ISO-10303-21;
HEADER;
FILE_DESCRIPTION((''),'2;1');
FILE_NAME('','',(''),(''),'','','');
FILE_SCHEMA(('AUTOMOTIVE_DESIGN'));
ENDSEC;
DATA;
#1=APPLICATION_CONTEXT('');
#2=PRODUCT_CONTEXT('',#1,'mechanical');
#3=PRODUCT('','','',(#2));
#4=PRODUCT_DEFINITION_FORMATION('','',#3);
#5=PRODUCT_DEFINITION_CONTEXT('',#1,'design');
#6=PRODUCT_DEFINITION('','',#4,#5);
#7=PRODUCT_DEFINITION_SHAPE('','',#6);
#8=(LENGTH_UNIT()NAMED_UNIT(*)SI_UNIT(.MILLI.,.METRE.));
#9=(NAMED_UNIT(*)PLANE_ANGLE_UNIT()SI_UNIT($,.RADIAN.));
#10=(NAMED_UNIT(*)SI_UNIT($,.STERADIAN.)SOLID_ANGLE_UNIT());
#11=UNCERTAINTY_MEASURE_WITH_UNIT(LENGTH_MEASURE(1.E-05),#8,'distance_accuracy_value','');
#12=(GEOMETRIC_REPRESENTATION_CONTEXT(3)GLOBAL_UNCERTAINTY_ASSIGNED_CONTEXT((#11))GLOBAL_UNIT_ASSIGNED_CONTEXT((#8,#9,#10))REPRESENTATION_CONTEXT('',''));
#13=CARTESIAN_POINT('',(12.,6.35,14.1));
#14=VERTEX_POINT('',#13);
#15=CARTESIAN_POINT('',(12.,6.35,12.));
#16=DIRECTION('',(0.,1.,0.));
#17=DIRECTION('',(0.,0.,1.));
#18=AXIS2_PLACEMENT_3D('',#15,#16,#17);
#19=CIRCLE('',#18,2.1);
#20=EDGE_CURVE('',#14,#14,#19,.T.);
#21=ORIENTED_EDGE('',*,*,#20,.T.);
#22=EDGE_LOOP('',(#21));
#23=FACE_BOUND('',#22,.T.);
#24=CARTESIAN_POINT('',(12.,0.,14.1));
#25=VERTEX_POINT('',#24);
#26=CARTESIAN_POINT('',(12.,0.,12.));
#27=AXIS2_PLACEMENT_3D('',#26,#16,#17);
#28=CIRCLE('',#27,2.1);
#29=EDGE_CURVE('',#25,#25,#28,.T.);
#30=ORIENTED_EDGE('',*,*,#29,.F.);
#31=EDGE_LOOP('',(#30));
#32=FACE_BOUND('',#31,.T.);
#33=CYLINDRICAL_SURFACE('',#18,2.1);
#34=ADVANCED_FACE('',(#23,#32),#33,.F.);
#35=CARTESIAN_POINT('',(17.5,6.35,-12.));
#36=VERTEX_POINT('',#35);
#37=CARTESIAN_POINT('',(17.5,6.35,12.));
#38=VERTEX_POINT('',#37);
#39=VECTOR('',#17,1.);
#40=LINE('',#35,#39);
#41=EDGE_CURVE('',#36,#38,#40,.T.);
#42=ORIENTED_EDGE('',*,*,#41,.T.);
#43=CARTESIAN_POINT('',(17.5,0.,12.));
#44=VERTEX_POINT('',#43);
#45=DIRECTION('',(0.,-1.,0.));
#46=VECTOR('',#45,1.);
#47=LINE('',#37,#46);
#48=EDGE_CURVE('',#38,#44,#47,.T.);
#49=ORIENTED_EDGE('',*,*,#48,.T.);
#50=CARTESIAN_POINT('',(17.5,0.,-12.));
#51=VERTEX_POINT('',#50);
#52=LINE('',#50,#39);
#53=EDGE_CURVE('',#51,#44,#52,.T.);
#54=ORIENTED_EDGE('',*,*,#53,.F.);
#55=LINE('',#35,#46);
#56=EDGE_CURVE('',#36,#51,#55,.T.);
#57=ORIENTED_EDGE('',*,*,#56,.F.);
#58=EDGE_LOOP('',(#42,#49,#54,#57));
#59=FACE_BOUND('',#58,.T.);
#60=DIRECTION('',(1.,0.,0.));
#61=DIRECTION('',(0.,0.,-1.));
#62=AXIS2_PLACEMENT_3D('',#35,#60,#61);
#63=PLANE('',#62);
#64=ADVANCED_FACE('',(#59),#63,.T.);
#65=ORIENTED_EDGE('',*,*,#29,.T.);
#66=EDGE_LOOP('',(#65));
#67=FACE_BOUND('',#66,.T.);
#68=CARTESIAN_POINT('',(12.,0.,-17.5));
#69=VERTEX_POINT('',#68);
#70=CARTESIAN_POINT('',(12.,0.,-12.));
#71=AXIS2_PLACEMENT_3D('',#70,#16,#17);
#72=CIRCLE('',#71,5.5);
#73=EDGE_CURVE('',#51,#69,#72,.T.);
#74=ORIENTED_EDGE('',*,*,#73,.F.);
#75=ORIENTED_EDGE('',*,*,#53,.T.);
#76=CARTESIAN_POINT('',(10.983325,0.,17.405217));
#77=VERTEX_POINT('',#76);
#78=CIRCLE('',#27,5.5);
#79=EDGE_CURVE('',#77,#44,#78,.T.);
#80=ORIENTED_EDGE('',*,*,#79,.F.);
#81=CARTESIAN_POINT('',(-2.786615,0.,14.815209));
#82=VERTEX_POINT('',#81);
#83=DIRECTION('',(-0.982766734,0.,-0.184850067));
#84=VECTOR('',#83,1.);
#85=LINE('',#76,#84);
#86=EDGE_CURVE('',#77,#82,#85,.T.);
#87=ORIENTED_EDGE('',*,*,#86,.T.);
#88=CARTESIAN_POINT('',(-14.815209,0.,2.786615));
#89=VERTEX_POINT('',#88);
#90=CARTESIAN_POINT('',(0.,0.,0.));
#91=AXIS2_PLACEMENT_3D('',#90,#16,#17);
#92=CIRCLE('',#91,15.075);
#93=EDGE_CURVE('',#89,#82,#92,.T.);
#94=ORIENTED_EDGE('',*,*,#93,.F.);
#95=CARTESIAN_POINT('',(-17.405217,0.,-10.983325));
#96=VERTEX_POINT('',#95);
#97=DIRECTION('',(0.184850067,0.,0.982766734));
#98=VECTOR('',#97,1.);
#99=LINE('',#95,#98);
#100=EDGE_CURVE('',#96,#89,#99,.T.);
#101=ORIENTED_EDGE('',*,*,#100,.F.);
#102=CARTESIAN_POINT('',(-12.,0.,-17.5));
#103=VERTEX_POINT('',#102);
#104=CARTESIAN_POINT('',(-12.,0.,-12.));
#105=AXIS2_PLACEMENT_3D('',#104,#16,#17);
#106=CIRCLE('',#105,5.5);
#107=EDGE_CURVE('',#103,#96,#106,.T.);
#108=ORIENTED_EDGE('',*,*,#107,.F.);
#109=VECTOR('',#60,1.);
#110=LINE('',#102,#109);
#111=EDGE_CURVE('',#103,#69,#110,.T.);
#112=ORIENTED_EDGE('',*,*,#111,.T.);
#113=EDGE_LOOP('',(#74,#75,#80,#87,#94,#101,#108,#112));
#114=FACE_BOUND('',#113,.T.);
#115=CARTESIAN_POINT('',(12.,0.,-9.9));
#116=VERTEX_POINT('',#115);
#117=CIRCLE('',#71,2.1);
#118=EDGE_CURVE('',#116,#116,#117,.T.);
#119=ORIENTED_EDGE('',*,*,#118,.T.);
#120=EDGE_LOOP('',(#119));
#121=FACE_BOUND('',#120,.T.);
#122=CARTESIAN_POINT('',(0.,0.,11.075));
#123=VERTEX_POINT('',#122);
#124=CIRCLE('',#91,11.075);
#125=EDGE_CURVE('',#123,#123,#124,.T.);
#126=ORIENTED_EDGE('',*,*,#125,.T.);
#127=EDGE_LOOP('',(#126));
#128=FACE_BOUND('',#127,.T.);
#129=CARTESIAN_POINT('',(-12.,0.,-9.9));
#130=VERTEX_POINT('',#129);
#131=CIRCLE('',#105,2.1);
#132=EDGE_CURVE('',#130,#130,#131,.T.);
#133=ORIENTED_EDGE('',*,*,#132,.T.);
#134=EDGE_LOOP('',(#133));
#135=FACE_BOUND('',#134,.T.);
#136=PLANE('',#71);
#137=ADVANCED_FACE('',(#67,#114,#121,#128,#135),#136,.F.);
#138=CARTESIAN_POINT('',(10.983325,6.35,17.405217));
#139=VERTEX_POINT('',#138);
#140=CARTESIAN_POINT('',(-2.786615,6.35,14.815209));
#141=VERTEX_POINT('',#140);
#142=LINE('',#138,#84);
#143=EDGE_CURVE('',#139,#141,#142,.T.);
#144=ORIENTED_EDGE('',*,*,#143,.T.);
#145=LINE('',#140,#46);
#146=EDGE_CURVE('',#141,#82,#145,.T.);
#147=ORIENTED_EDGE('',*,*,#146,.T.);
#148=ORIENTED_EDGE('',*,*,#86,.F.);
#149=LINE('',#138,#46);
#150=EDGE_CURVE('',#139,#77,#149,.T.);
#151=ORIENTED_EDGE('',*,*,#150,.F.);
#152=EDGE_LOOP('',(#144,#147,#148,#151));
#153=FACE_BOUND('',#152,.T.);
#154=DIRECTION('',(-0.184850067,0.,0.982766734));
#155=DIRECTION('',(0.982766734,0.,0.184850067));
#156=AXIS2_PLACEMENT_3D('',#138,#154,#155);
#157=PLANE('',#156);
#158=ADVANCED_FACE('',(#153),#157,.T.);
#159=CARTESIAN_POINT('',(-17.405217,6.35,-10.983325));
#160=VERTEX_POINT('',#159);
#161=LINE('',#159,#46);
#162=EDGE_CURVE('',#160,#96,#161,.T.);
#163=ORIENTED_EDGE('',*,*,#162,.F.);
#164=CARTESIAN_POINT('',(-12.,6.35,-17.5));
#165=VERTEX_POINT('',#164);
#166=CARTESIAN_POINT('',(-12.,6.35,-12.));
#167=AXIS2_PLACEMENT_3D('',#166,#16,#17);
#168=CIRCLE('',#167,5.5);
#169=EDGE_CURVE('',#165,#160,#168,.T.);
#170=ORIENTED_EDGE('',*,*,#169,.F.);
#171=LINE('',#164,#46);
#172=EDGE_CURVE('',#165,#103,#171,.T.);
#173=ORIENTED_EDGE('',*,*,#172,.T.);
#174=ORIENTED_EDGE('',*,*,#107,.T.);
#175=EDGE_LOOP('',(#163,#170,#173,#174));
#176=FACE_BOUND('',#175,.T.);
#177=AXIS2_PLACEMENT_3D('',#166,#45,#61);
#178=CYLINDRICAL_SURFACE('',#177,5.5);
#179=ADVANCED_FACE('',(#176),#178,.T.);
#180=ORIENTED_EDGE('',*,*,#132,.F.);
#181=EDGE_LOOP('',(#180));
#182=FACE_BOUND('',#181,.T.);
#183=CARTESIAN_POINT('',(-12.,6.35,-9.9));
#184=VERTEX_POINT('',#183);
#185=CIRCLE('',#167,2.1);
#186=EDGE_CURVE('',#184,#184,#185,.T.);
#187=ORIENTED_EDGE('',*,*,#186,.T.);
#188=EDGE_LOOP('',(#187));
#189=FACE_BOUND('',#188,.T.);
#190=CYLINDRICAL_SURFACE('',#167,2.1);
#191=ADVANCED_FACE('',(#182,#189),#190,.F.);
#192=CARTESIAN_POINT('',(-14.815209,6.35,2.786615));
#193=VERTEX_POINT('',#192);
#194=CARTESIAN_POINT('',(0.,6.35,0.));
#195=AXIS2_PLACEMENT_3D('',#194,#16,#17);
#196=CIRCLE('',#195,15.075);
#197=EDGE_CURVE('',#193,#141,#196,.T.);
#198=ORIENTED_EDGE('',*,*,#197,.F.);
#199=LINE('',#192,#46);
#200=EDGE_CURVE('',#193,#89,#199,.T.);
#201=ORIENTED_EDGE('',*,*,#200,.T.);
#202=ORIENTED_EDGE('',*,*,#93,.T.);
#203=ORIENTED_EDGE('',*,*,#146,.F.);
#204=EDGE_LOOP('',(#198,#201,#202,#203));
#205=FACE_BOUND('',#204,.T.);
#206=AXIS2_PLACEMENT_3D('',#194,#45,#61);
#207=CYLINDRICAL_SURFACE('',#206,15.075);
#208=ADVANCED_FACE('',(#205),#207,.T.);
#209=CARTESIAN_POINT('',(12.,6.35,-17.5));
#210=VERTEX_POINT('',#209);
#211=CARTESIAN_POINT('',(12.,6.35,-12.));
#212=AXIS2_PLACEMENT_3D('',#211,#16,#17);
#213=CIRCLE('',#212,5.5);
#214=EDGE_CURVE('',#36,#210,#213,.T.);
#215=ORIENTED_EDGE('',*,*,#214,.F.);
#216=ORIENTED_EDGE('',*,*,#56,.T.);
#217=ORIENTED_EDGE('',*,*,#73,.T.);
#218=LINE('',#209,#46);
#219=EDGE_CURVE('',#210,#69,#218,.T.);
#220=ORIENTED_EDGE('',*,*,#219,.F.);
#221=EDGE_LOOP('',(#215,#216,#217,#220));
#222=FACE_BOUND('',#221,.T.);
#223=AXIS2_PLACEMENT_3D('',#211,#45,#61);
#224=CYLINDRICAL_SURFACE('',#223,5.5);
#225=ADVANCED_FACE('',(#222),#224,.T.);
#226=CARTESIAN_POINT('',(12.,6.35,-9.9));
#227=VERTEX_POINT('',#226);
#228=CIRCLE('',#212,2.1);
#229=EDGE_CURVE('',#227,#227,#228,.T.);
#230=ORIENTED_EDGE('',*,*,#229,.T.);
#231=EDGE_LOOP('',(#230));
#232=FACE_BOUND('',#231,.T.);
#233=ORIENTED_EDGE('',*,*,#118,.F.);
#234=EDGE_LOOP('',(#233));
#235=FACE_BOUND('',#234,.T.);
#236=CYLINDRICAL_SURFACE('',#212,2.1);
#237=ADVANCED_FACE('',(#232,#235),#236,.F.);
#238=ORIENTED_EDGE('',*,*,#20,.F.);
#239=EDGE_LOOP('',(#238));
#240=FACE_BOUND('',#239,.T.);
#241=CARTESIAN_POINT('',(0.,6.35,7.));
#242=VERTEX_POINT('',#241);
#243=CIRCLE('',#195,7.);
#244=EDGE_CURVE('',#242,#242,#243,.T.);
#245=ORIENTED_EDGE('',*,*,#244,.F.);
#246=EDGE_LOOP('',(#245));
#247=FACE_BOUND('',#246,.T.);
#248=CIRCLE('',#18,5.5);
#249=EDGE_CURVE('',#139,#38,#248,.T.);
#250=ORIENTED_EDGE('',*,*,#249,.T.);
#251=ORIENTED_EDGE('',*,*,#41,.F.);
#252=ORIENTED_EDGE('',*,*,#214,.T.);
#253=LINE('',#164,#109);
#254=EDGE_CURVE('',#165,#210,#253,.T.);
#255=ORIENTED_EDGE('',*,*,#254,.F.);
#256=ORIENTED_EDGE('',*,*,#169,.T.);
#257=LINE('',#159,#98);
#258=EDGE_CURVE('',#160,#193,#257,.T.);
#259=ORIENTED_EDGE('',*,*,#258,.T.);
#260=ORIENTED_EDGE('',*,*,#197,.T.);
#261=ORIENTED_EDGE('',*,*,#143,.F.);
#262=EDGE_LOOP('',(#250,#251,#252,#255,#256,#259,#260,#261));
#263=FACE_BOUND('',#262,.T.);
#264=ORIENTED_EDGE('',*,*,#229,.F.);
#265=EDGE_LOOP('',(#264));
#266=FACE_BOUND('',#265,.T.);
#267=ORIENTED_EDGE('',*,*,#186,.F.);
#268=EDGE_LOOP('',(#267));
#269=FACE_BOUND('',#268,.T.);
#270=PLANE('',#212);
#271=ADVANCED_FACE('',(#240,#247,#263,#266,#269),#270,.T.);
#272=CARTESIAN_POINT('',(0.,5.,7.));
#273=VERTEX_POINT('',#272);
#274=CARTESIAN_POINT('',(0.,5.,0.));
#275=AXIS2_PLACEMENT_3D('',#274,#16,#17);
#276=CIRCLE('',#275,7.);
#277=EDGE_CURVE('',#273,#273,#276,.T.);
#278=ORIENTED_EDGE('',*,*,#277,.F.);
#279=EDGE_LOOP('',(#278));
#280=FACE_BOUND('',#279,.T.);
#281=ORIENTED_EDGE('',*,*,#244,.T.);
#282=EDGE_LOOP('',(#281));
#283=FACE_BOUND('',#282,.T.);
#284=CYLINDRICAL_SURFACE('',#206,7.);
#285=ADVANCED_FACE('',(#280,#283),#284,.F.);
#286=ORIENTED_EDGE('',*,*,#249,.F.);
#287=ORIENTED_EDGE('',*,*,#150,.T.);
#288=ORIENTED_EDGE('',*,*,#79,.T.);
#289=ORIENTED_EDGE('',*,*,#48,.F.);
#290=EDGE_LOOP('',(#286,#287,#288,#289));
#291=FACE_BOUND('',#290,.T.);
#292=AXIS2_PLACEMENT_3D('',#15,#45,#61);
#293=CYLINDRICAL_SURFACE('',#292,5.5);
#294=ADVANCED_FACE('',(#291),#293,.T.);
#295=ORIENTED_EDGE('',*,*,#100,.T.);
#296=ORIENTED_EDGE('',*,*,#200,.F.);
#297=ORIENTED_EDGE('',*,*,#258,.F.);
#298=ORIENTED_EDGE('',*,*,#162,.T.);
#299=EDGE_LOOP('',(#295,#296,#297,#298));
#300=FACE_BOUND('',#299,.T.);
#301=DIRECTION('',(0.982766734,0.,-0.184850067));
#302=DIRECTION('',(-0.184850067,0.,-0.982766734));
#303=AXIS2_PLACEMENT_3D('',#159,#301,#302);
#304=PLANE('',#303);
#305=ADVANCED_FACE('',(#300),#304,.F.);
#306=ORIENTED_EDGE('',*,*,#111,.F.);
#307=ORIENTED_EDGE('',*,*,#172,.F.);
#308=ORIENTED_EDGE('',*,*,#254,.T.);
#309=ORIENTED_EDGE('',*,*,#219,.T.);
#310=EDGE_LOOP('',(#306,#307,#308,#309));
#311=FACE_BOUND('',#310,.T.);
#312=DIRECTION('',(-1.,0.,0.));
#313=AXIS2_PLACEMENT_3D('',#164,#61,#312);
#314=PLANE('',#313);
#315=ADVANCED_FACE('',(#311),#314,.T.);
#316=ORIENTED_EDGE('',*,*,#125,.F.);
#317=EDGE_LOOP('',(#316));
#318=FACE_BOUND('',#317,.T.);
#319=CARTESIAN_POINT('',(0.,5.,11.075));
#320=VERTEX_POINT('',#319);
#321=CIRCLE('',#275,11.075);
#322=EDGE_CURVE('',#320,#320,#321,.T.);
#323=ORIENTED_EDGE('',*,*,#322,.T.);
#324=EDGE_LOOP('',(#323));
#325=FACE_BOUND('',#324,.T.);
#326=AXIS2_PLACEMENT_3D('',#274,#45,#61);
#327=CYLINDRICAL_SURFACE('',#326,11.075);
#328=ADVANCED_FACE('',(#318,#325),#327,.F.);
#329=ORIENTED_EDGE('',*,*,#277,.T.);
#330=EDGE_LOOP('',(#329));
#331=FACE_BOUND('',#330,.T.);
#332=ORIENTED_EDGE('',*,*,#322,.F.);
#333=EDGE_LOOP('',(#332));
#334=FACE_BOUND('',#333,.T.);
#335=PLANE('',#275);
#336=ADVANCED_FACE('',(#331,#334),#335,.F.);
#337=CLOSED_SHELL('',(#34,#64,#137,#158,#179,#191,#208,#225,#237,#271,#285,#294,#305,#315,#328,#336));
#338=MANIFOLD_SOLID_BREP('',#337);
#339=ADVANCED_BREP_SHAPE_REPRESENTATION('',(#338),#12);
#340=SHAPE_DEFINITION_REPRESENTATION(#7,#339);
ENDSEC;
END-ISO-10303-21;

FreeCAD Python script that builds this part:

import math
import FreeCAD as App
import Part
import Sketcher
Q = App.Units.Quantity

doc = App.newDocument("Part")
body = doc.addObject("PartDesign::Body", "Body")

# Sketch on XZ plane
sketch1 = body.newObject("Sketcher::SketchObject", "Sketch")
sketch1.AttachmentSupport = (doc.getObject("XZ_Plane"), [""])
sketch1.MapMode = "FlatFace"
sketch1.addGeometry([
    Part.LineSegment(App.Vector(12, -17.5, 0), App.Vector(-12, -17.5, 0)),  # 0
    Part.ArcOfCircle(Part.Circle(App.Vector(-12, -12, 0), App.Vector(0, 0, 1), 5.5), math.radians(169.347609), math.radians(270)),  # 1
    Part.LineSegment(App.Vector(-17.405217, -10.983325, 0), App.Vector(-14.815209, 2.786615, 0)),  # 2
    Part.ArcOfCircle(Part.Circle(App.Vector(0, 0, 0), App.Vector(0, 0, 1), 15.075), math.radians(100.652391), math.radians(169.347609)),  # 3
    Part.LineSegment(App.Vector(-2.786615, 14.815209, 0), App.Vector(10.983325, 17.405217, 0)),  # 4
    Part.ArcOfCircle(Part.Circle(App.Vector(12, 12, 0), App.Vector(0, 0, 1), 5.5), math.radians(0), math.radians(100.652391)),  # 5
    Part.LineSegment(App.Vector(17.5, 12, 0), App.Vector(17.5, -12, 0)),  # 6
    Part.ArcOfCircle(Part.Circle(App.Vector(12, -12, 0), App.Vector(0, 0, 1), 5.5), math.radians(-90), math.radians(0)),  # 7
    Part.Circle(App.Vector(0, 0, 0), App.Vector(0, 0, 1), 7),  # 8
], False)
sketch1.addConstraint([
    Sketcher.Constraint("Tangent", 0, 2, 1, 2),
    Sketcher.Constraint("Tangent", 1, 1, 2, 1),
    Sketcher.Constraint("Tangent", 2, 2, 3, 2),
    Sketcher.Constraint("Tangent", 3, 1, 4, 1),
    Sketcher.Constraint("Tangent", 4, 2, 5, 2),
    Sketcher.Constraint("Tangent", 5, 1, 6, 1),
    Sketcher.Constraint("Tangent", 6, 2, 7, 2),
    Sketcher.Constraint("Tangent", 7, 1, 0, 1),
    Sketcher.Constraint("Horizontal", 0),
    Sketcher.Constraint("Vertical", 6),
    Sketcher.Constraint("Coincident", 3, 3, -1, 1),
    Sketcher.Constraint("Coincident", 8, 3, -1, 1),
    Sketcher.Constraint("Equal", 1, 5),
    Sketcher.Constraint("Equal", 5, 7),
    Sketcher.Constraint("Symmetric", 1, 3, 5, 3, -1, 1),
    Sketcher.Constraint("Equal", 0, 6),
    Sketcher.Constraint("Diameter", 8, Q("14 mm")),
    Sketcher.Constraint("Radius", 1, Q("5.5 mm")),
    Sketcher.Constraint("DistanceX", 0, 2, 0, 1, Q("24 mm")),
    Sketcher.Constraint("Radius", 3, Q("15.075 mm")),
])
pad1 = body.newObject("PartDesign::Pad", "Pad")
pad1.Profile = sketch1
pad1.Length = 6.35
pad1.Reversed = True

# Sketch on XZ plane
sketch2 = body.newObject("Sketcher::SketchObject", "Sketch001")
sketch2.AttachmentSupport = (doc.getObject("XZ_Plane"), [""])
sketch2.MapMode = "FlatFace"
sketch2.addGeometry(Part.Circle(App.Vector(0, 0, 0), App.Vector(0, 0, 1), 11.075), False)
sketch2.addConstraint([
    Sketcher.Constraint("Coincident", 0, 3, -1, 1),
    Sketcher.Constraint("Diameter", 0, Q("22.15 mm")),
])
pocket1 = body.newObject("PartDesign::Pocket", "Pocket")
pocket1.Profile = sketch2
pocket1.Length = 5

# Sketch on XZ plane
sketch3 = body.newObject("Sketcher::SketchObject", "Sketch002")
sketch3.AttachmentSupport = (doc.getObject("XZ_Plane"), [""])
sketch3.MapMode = "FlatFace"
sketch3.AttachmentOffset = App.Placement(App.Vector(0, 0, -6.35), App.Rotation())
sketch3.addGeometry([
    Part.Circle(App.Vector(12, -12, 0), App.Vector(0, 0, 1), 2.1),
    Part.Circle(App.Vector(12, 12, 0), App.Vector(0, 0, 1), 2.1),
    Part.Circle(App.Vector(-12, -12, 0), App.Vector(0, 0, 1), 2.1),
], False)
sketch3.addConstraint([
    Sketcher.Constraint("Equal", 0, 1),
    Sketcher.Constraint("Equal", 1, 2),
    Sketcher.Constraint("Symmetric", 1, 3, 2, 3, -1, 1),
    Sketcher.Constraint("Symmetric", 0, 3, 2, 3, -2),
    Sketcher.Constraint("Diameter", 0, Q("4.2 mm")),
    Sketcher.Constraint("DistanceX", -1, 1, 0, 3, Q("12 mm")),
    Sketcher.Constraint("DistanceY", 0, 3, -1, 1, Q("12 mm")),
])
doc.recompute()
hole = body.newObject("PartDesign::Hole", "Hole")
hole.Profile = sketch3
hole.ThreadType = "None"
hole.Diameter = 4.2
hole.DepthType = "ThroughAll"
hole.Reversed = True

doc.recompute()
